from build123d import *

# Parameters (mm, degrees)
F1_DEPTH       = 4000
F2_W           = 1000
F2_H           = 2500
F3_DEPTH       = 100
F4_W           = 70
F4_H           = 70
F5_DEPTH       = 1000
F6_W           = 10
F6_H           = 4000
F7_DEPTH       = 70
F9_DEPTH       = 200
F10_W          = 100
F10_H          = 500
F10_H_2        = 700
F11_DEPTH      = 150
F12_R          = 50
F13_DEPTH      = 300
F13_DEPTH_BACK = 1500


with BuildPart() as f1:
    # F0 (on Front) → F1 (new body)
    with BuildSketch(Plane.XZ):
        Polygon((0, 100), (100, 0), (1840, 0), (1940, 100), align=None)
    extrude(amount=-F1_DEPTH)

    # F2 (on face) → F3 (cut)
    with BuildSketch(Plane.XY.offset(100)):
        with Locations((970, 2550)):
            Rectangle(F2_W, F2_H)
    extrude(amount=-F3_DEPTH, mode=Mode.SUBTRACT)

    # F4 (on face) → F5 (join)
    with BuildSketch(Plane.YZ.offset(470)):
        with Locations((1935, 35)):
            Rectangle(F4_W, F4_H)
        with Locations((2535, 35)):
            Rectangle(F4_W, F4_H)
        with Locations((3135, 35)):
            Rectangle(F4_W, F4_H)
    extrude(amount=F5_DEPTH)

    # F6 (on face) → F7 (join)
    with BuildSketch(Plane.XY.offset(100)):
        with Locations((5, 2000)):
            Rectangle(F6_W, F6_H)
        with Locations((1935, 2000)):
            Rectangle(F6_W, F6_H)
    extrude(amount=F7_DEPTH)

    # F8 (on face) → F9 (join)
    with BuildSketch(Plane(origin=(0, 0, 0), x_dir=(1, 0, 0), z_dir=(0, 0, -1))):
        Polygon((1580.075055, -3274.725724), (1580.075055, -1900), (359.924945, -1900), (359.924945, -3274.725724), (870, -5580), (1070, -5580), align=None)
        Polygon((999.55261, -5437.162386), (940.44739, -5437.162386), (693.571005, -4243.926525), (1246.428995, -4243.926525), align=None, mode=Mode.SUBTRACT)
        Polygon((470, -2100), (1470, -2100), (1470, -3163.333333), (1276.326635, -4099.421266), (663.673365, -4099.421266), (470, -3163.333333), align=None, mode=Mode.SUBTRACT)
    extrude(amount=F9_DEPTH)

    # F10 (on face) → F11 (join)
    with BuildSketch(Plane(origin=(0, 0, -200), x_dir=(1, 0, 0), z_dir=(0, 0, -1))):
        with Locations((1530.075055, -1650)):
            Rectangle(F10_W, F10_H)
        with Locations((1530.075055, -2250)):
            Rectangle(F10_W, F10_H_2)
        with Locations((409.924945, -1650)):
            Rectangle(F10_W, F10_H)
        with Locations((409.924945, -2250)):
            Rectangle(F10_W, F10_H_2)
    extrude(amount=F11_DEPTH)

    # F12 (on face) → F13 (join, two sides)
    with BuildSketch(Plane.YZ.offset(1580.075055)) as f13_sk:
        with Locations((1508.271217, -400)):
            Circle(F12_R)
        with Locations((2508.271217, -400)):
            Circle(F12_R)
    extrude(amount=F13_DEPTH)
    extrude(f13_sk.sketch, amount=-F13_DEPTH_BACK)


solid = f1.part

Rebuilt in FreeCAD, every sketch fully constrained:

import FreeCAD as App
import Part
import Sketcher

V = App.Vector
Q = App.Units.Quantity


def add_polygon(sketch, points):
    """Adds a closed chain of lines whose ends are joined by coincident constraints."""
    first, n = sketch.GeometryCount, len(points)
    for a, b in zip(points, points[1:] + points[:1]):
        sketch.addGeometry(Part.LineSegment(App.Vector(*a, 0), App.Vector(*b, 0)), False)
    for i in range(n):
        sketch.addConstraint(Sketcher.Constraint("Coincident", first + i, 2, first + (i + 1) % n, 1))

doc = App.newDocument("Part")
body = doc.addObject("PartDesign::Body", "Body")
body.AllowCompound = True

# Sketch on XZ plane
sketch1 = body.newObject("Sketcher::SketchObject", "Sketch")
sketch1.AttachmentSupport = (doc.getObject("XZ_Plane"), [""])
sketch1.MapMode = "FlatFace"
add_polygon(sketch1, [(0, 100), (100, 0), (1840, 0), (1940, 100)])  # lines 0-3
sketch1.addConstraint(Sketcher.Constraint("Horizontal", 1))
sketch1.addConstraint(Sketcher.Constraint("Horizontal", 3))
sketch1.addConstraint(Sketcher.Constraint("PointOnObject", 0, 2, -1))
sketch1.addConstraint(Sketcher.Constraint("PointOnObject", 3, 2, -2))
sketch1.addConstraint(Sketcher.Constraint("Perpendicular", 0, 2))
sketch1.addConstraint(Sketcher.Constraint("Equal", 0, 2))
sketch1.addConstraint(Sketcher.Constraint("DistanceX", 1, 1, 1, 2, Q("1740 mm")))
sketch1.addConstraint(Sketcher.Constraint("DistanceX", 3, 2, 3, 1, Q("1940 mm")))
pad1 = body.newObject("PartDesign::Pad", "Pad")
pad1.Profile = sketch1
pad1.Length = 4000
pad1.Reversed = True

# Sketch on XY plane
sketch2 = body.newObject("Sketcher::SketchObject", "Sketch001")
sketch2.AttachmentSupport = (doc.getObject("XY_Plane"), [""])
sketch2.MapMode = "FlatFace"
sketch2.AttachmentOffset = App.Placement(V(0, 0, 100), App.Rotation())
add_polygon(sketch2, [(470, 3800), (470, 1300), (1470, 1300), (1470, 3800)])  # lines 0-3
sketch2.addConstraint(Sketcher.Constraint("Vertical", 0))
sketch2.addConstraint(Sketcher.Constraint("Horizontal", 1))
sketch2.addConstraint(Sketcher.Constraint("Vertical", 2))
sketch2.addConstraint(Sketcher.Constraint("Horizontal", 3))
sketch2.addConstraint(Sketcher.Constraint("DistanceX", 1, 1, 1, 2, Q("1000 mm")))
sketch2.addConstraint(Sketcher.Constraint("DistanceY", 0, 2, 0, 1, Q("2500 mm")))
sketch2.addConstraint(Sketcher.Constraint("DistanceX", -1, 1, 0, 2, Q("470 mm")))
sketch2.addConstraint(Sketcher.Constraint("DistanceY", -1, 1, 0, 2, Q("1300 mm")))
pocket1 = body.newObject("PartDesign::Pocket", "Pocket")
pocket1.Profile = sketch2
pocket1.Length = 100

# Sketch on YZ plane
sketch3 = body.newObject("Sketcher::SketchObject", "Sketch002")
sketch3.AttachmentSupport = (doc.getObject("YZ_Plane"), [""])
sketch3.MapMode = "FlatFace"
sketch3.AttachmentOffset = App.Placement(V(0, 0, 470), App.Rotation())
add_polygon(sketch3, [(1900, 70), (1900, 0), (1970, 0), (1970, 70)])  # lines 0-3
add_polygon(sketch3, [(2500, 70), (2500, 0), (2570, 0), (2570, 70)])  # lines 4-7
add_polygon(sketch3, [(3100, 70), (3100, 0), (3170, 0), (3170, 70)])  # lines 8-11
sketch3.addConstraint(Sketcher.Constraint("Vertical", 0))
sketch3.addConstraint(Sketcher.Constraint("Horizontal", 1))
sketch3.addConstraint(Sketcher.Constraint("Vertical", 2))
sketch3.addConstraint(Sketcher.Constraint("Horizontal", 3))
sketch3.addConstraint(Sketcher.Constraint("Vertical", 4))
sketch3.addConstraint(Sketcher.Constraint("Horizontal", 5))
sketch3.addConstraint(Sketcher.Constraint("Vertical", 6))
sketch3.addConstraint(Sketcher.Constraint("Horizontal", 7))
sketch3.addConstraint(Sketcher.Constraint("Vertical", 8))
sketch3.addConstraint(Sketcher.Constraint("Horizontal", 9))
sketch3.addConstraint(Sketcher.Constraint("Vertical", 10))
sketch3.addConstraint(Sketcher.Constraint("Horizontal", 11))
sketch3.addConstraint(Sketcher.Constraint("PointOnObject", 0, 2, -1))
sketch3.addConstraint(Sketcher.Constraint("PointOnObject", 4, 2, -1))
sketch3.addConstraint(Sketcher.Constraint("PointOnObject", 8, 2, -1))
sketch3.addConstraint(Sketcher.Constraint("Horizontal", 3, 2, 6, 2))
sketch3.addConstraint(Sketcher.Constraint("Horizontal", 7, 2, 10, 2))
sketch3.addConstraint(Sketcher.Constraint("Equal", 3, 5))
sketch3.addConstraint(Sketcher.Constraint("Equal", 7, 9))
sketch3.addConstraint(Sketcher.Constraint("Equal", 11, 0))
sketch3.addConstraint(Sketcher.Constraint("DistanceX", 1, 1, 1, 2, Q("70 mm")))
sketch3.addConstraint(Sketcher.Constraint("DistanceX", -1, 1, 0, 2, Q("1900 mm")))
sketch3.addConstraint(Sketcher.Constraint("DistanceX", -1, 1, 4, 2, Q("2500 mm")))
sketch3.addConstraint(Sketcher.Constraint("DistanceX", -1, 1, 8, 2, Q("3100 mm")))
pad2 = body.newObject("PartDesign::Pad", "Pad001")
pad2.Profile = sketch3
pad2.Length = 1000

# Sketch on XY plane
sketch4 = body.newObject("Sketcher::SketchObject", "Sketch003")
sketch4.AttachmentSupport = (doc.getObject("XY_Plane"), [""])
sketch4.MapMode = "FlatFace"
sketch4.AttachmentOffset = App.Placement(V(0, 0, 100), App.Rotation())
add_polygon(sketch4, [(0, 4000), (0, 0), (10, 0), (10, 4000)])  # lines 0-3
add_polygon(sketch4, [(1930, 4000), (1930, 0), (1940, 0), (1940, 4000)])  # lines 4-7
sketch4.addConstraint(Sketcher.Constraint("Vertical", 0))
sketch4.addConstraint(Sketcher.Constraint("Horizontal", 1))
sketch4.addConstraint(Sketcher.Constraint("Vertical", 2))
sketch4.addConstraint(Sketcher.Constraint("Horizontal", 3))
sketch4.addConstraint(Sketcher.Constraint("Vertical", 4))
sketch4.addConstraint(Sketcher.Constraint("Horizontal", 5))
sketch4.addConstraint(Sketcher.Constraint("Vertical", 6))
sketch4.addConstraint(Sketcher.Constraint("Horizontal", 7))
sketch4.addConstraint(Sketcher.Constraint("Coincident", 0, 2, -1, 1))
sketch4.addConstraint(Sketcher.Constraint("PointOnObject", 4, 2, -1))
sketch4.addConstraint(Sketcher.Constraint("Horizontal", 3, 2, 6, 2))
sketch4.addConstraint(Sketcher.Constraint("Equal", 3, 5))
sketch4.addConstraint(Sketcher.Constraint("DistanceX", 1, 1, 1, 2, Q("10 mm")))
sketch4.addConstraint(Sketcher.Constraint("DistanceY", 0, 2, 0, 1, Q("4000 mm")))
sketch4.addConstraint(Sketcher.Constraint("DistanceX", -1, 1, 4, 2, Q("1930 mm")))
pad3 = body.newObject("PartDesign::Pad", "Pad002")
pad3.Profile = sketch4
pad3.Length = 70

# Sketch on XY plane
sketch5 = body.newObject("Sketcher::SketchObject", "Sketch004")
sketch5.AttachmentSupport = (doc.getObject("XY_Plane"), [""])
sketch5.MapMode = "FlatFace"
add_polygon(sketch5, [(1580, 3275), (1580, 1900), (360, 1900), (360, 3275), (870, 5580), (1070, 5580)])  # lines 0-5
add_polygon(sketch5, [(1246, 4244), (1000, 5437), (940, 5437), (694, 4244)])  # lines 6-9
add_polygon(sketch5, [(470, 3163), (470, 2100), (1470, 2100), (1470, 3163), (1276, 4099), (664, 4099)])  # lines 10-15
sketch5.addConstraint(Sketcher.Constraint("Vertical", 0))
sketch5.addConstraint(Sketcher.Constraint("Horizontal", 1))
sketch5.addConstraint(Sketcher.Constraint("Vertical", 2))
sketch5.addConstraint(Sketcher.Constraint("Horizontal", 4))
sketch5.addConstraint(Sketcher.Constraint("Horizontal", 7))
sketch5.addConstraint(Sketcher.Constraint("Horizontal", 9))
sketch5.addConstraint(Sketcher.Constraint("Vertical", 10))
sketch5.addConstraint(Sketcher.Constraint("Horizontal", 11))
sketch5.addConstraint(Sketcher.Constraint("Vertical", 12))
sketch5.addConstraint(Sketcher.Constraint("Horizontal", 14))
sketch5.addConstraint(Sketcher.Constraint("Parallel", 6, 13))
sketch5.addConstraint(Sketcher.Constraint("Parallel", 8, 15))
sketch5.addConstraint(Sketcher.Constraint("Horizontal", 2, 2, 5, 2))
sketch5.addConstraint(Sketcher.Constraint("Horizontal", 12, 2, 15, 2))
sketch5.addConstraint(Sketcher.Constraint("Equal", 3, 5))
sketch5.addConstraint(Sketcher.Constraint("Equal", 6, 8))
sketch5.addConstraint(Sketcher.Constraint("DistanceX", 4, 1, 4, 2, Q("200 mm")))
sketch5.addConstraint(Sketcher.Constraint("DistanceX", 11, 1, 11, 2, Q("1000 mm")))
sketch5.addConstraint(Sketcher.Constraint("DistanceY", -1, 1, 0, 2, Q("1900 mm")))
sketch5.addConstraint(Sketcher.Constraint("DistanceX", -1, 1, 3, 2, Q("870 mm")))
sketch5.addConstraint(Sketcher.Constraint("DistanceY", -1, 1, 3, 2, Q("5580 mm")))
sketch5.addConstraint(Sketcher.Constraint("DistanceX", -1, 1, 10, 2, Q("470 mm")))
sketch5.addConstraint(Sketcher.Constraint("DistanceY", -1, 1, 10, 2, Q("2100 mm")))
sketch5.addConstraint(Sketcher.Constraint("DistanceX", 1, 2, 1, 1, Q("1220.15011 mm")))
sketch5.addConstraint(Sketcher.Constraint("DistanceX", 7, 2, 7, 1, Q("59.10522 mm")))
sketch5.addConstraint(Sketcher.Constraint("DistanceX", 9, 1, 9, 2, Q("552.85799 mm")))
sketch5.addConstraint(Sketcher.Constraint("DistanceX", 14, 2, 14, 1, Q("612.65327 mm")))
sketch5.addConstraint(Sketcher.Constraint("DistanceY", 2, 2, 8, 2, Q("969.200801 mm")))
sketch5.addConstraint(Sketcher.Constraint("Distance", 6, Q("1218.507189 mm")))
sketch5.addConstraint(Sketcher.Constraint("DistanceY", 0, 2, 0, 1, Q("1374.725724 mm")))
sketch5.addConstraint(Sketcher.Constraint("DistanceY", 10, 2, 10, 1, Q("1063.333333 mm")))
sketch5.addConstraint(Sketcher.Constraint("DistanceX", -1, 1, 6, 2, Q("999.55261 mm")))
pad4 = body.newObject("PartDesign::Pad", "Pad003")
pad4.Profile = sketch5
pad4.Length = 200
pad4.Reversed = True

# Sketch on XY plane
sketch6 = body.newObject("Sketcher::SketchObject", "Sketch005")
sketch6.AttachmentSupport = (doc.getObject("XY_Plane"), [""])
sketch6.MapMode = "FlatFace"
sketch6.AttachmentOffset = App.Placement(V(0, 0, -200), App.Rotation())
add_polygon(sketch6, [(1480, 1400), (1480, 2600), (1580, 2600), (1580, 1400)])  # lines 0-3
add_polygon(sketch6, [(360, 1400), (360, 2600), (460, 2600), (460, 1400)])  # lines 4-7
sketch6.addConstraint(Sketcher.Constraint("Vertical", 0))
sketch6.addConstraint(Sketcher.Constraint("Horizontal", 1))
sketch6.addConstraint(Sketcher.Constraint("Vertical", 2))
sketch6.addConstraint(Sketcher.Constraint("Horizontal", 3))
sketch6.addConstraint(Sketcher.Constraint("Vertical", 4))
sketch6.addConstraint(Sketcher.Constraint("Horizontal", 5))
sketch6.addConstraint(Sketcher.Constraint("Vertical", 6))
sketch6.addConstraint(Sketcher.Constraint("Horizontal", 7))
sketch6.addConstraint(Sketcher.Constraint("Horizontal", 1, 2, 4, 2))
sketch6.addConstraint(Sketcher.Constraint("Horizontal", 3, 2, 6, 2))
sketch6.addConstraint(Sketcher.Constraint("Equal", 3, 5))
sketch6.addConstraint(Sketcher.Constraint("DistanceX", 1, 1, 1, 2, Q("100 mm")))
sketch6.addConstraint(Sketcher.Constraint("DistanceY", 0, 1, 0, 2, Q("1200 mm")))
sketch6.addConstraint(Sketcher.Constraint("DistanceY", -1, 1, 0, 2, Q("2600 mm")))
sketch6.addConstraint(Sketcher.Constraint("DistanceX", 4, 2, 0, 2, Q("1120.15011 mm")))
sketch6.addConstraint(Sketcher.Constraint("DistanceX", -1, 1, 0, 2, Q("1480.075055 mm")))
pad5 = body.newObject("PartDesign::Pad", "Pad004")
pad5.Profile = sketch6
pad5.Length = 150
pad5.Reversed = True

# Sketch on YZ plane
sketch7 = body.newObject("Sketcher::SketchObject", "Sketch006")
sketch7.AttachmentSupport = (doc.getObject("YZ_Plane"), [""])
sketch7.MapMode = "FlatFace"
sketch7.AttachmentOffset = App.Placement(V(0, 0, 1580.075055), App.Rotation())
sketch7.addGeometry(Part.Circle(V(1508, -400, 0), V(0, 0, 1), 50), False)
sketch7.addGeometry(Part.Circle(V(2508, -400, 0), V(0, 0, 1), 50), False)
sketch7.addConstraint(Sketcher.Constraint("Equal", 0, 1))
sketch7.addConstraint(Sketcher.Constraint("Horizontal", 0, 3, 1, 3))
sketch7.addConstraint(Sketcher.Constraint("Diameter", 0, Q("100 mm")))
sketch7.addConstraint(Sketcher.Constraint("DistanceY", 0, 3, -1, 1, Q("400 mm")))
sketch7.addConstraint(Sketcher.Constraint("DistanceX", 0, 3, 1, 3, Q("1000 mm")))
sketch7.addConstraint(Sketcher.Constraint("DistanceX", -1, 1, 0, 3, Q("1508.271217 mm")))
pad6 = body.newObject("PartDesign::Pad", "Pad005")
pad6.Profile = sketch7
pad6.Type = "TwoLengths"
pad6.Length = 300
pad6.Length2 = 1500

doc.recompute()
